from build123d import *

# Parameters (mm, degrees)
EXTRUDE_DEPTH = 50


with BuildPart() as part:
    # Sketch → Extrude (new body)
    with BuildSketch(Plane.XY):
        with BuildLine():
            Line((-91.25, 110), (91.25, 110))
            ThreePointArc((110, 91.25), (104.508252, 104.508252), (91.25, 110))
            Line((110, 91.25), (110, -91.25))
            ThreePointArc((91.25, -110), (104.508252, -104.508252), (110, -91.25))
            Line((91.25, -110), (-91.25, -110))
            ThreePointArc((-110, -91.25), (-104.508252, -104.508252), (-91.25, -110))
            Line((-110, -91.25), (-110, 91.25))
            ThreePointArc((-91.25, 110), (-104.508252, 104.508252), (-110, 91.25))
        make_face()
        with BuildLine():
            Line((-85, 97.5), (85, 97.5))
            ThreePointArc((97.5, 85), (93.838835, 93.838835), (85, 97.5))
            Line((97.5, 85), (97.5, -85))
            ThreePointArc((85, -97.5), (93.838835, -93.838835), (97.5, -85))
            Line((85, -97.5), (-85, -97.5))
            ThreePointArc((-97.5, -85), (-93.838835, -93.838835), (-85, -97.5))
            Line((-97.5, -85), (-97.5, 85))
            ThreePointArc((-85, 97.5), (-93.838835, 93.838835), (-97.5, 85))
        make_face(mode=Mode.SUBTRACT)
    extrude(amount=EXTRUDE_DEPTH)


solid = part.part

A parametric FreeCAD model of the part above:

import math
import FreeCAD as App
import Part
import Sketcher
Q = App.Units.Quantity

doc = App.newDocument("Part")
body = doc.addObject("PartDesign::Body", "Body")

# Sketch on XY plane
sketch1 = body.newObject("Sketcher::SketchObject", "Sketch")
sketch1.AttachmentSupport = (doc.getObject("XY_Plane"), [""])
sketch1.MapMode = "FlatFace"
sketch1.addGeometry([
    Part.LineSegment(App.Vector(91.25, 110, 0), App.Vector(-91.25, 110, 0)),  # 0
    Part.ArcOfCircle(Part.Circle(App.Vector(-91.249999, 91.249999, 0), App.Vector(0, 0, 1), 18.750001), math.radians(90.000002), math.radians(179.999998)),  # 1
    Part.LineSegment(App.Vector(-110, 91.25, 0), App.Vector(-110, -91.25, 0)),  # 2
    Part.ArcOfCircle(Part.Circle(App.Vector(-91.249999, -91.249999, 0), App.Vector(0, 0, 1), 18.750001), math.radians(-179.999998), math.radians(-90.000002)),  # 3
    Part.LineSegment(App.Vector(-91.25, -110, 0), App.Vector(91.25, -110, 0)),  # 4
    Part.ArcOfCircle(Part.Circle(App.Vector(91.249999, -91.249999, 0), App.Vector(0, 0, 1), 18.750001), math.radians(-89.999998), math.radians(-0.000002)),  # 5
    Part.LineSegment(App.Vector(110, -91.25, 0), App.Vector(110, 91.25, 0)),  # 6
    Part.ArcOfCircle(Part.Circle(App.Vector(91.249999, 91.249999, 0), App.Vector(0, 0, 1), 18.750001), math.radians(0.000002), math.radians(89.999998)),  # 7
    Part.LineSegment(App.Vector(-85, 97.5, 0), App.Vector(85, 97.5, 0)),  # 8
    Part.ArcOfCircle(Part.Circle(App.Vector(85.000001, 85.000001, 0), App.Vector(0, 0, 1), 12.499999), math.radians(-0.000004), math.radians(90.000004)),  # 9
    Part.LineSegment(App.Vector(97.5, 85, 0), App.Vector(97.5, -85, 0)),  # 10
    Part.ArcOfCircle(Part.Circle(App.Vector(85.000001, -85.000001, 0), App.Vector(0, 0, 1), 12.499999), math.radians(-90.000004), math.radians(0.000004)),  # 11
    Part.LineSegment(App.Vector(85, -97.5, 0), App.Vector(-85, -97.5, 0)),  # 12
    Part.ArcOfCircle(Part.Circle(App.Vector(-85.000001, -85.000001, 0), App.Vector(0, 0, 1), 12.499999), math.radians(179.999996), math.radians(270.000004)),  # 13
    Part.LineSegment(App.Vector(-97.5, -85, 0), App.Vector(-97.5, 85, 0)),  # 14
    Part.ArcOfCircle(Part.Circle(App.Vector(-85.000001, 85.000001, 0), App.Vector(0, 0, 1), 12.499999), math.radians(89.999996), math.radians(180.000004)),  # 15
], False)
sketch1.addConstraint([
    Sketcher.Constraint("Tangent", 0, 2, 1, 1),
    Sketcher.Constraint("Tangent", 1, 2, 2, 1),
    Sketcher.Constraint("Tangent", 2, 2, 3, 1),
    Sketcher.Constraint("Tangent", 3, 2, 4, 1),
    Sketcher.Constraint("Tangent", 4, 2, 5, 1),
    Sketcher.Constraint("Tangent", 5, 2, 6, 1),
    Sketcher.Constraint("Tangent", 6, 2, 7, 1),
    Sketcher.Constraint("Tangent", 7, 2, 0, 1),
    Sketcher.Constraint("Tangent", 8, 2, 9, 2),
    Sketcher.Constraint("Tangent", 9, 1, 10, 1),
    Sketcher.Constraint("Tangent", 10, 2, 11, 2),
    Sketcher.Constraint("Tangent", 11, 1, 12, 1),
    Sketcher.Constraint("Tangent", 12, 2, 13, 2),
    Sketcher.Constraint("Tangent", 13, 1, 14, 1),
    Sketcher.Constraint("Tangent", 14, 2, 15, 2),
    Sketcher.Constraint("Tangent", 15, 1, 8, 1),
    Sketcher.Constraint("Horizontal", 0),
    Sketcher.Constraint("Vertical", 2),
    Sketcher.Constraint("Horizontal", 4),
    Sketcher.Constraint("Vertical", 6),
    Sketcher.Constraint("Horizontal", 8),
    Sketcher.Constraint("Vertical", 10),
    Sketcher.Constraint("Horizontal", 12),
    Sketcher.Constraint("Vertical", 14),
    Sketcher.Constraint("Equal", 1, 3),
    Sketcher.Constraint("Equal", 3, 5),
    Sketcher.Constraint("Equal", 5, 7),
    Sketcher.Constraint("Equal", 9, 11),
    Sketcher.Constraint("Equal", 11, 13),
    Sketcher.Constraint("Equal", 13, 15),
    Sketcher.Constraint("Symmetric", 1, 3, 5, 3, -1, 1),
    Sketcher.Constraint("Symmetric", 9, 3, 13, 3, -1, 1),
    Sketcher.Constraint("Equal", 4, 2),
    Sketcher.Constraint("Equal", 12, 10),
    Sketcher.Constraint("Radius", 9, Q("12.499999 mm")),
    Sketcher.Constraint("DistanceX", 8, 1, 8, 2, Q("170 mm")),
    Sketcher.Constraint("Radius", 1, Q("18.750001 mm")),
    Sketcher.Constraint("DistanceX", 0, 2, 0, 1, Q("182.5 mm")),
])
pad1 = body.newObject("PartDesign::Pad", "Pad")
pad1.Profile = sketch1
pad1.Length = 50

doc.recompute()
